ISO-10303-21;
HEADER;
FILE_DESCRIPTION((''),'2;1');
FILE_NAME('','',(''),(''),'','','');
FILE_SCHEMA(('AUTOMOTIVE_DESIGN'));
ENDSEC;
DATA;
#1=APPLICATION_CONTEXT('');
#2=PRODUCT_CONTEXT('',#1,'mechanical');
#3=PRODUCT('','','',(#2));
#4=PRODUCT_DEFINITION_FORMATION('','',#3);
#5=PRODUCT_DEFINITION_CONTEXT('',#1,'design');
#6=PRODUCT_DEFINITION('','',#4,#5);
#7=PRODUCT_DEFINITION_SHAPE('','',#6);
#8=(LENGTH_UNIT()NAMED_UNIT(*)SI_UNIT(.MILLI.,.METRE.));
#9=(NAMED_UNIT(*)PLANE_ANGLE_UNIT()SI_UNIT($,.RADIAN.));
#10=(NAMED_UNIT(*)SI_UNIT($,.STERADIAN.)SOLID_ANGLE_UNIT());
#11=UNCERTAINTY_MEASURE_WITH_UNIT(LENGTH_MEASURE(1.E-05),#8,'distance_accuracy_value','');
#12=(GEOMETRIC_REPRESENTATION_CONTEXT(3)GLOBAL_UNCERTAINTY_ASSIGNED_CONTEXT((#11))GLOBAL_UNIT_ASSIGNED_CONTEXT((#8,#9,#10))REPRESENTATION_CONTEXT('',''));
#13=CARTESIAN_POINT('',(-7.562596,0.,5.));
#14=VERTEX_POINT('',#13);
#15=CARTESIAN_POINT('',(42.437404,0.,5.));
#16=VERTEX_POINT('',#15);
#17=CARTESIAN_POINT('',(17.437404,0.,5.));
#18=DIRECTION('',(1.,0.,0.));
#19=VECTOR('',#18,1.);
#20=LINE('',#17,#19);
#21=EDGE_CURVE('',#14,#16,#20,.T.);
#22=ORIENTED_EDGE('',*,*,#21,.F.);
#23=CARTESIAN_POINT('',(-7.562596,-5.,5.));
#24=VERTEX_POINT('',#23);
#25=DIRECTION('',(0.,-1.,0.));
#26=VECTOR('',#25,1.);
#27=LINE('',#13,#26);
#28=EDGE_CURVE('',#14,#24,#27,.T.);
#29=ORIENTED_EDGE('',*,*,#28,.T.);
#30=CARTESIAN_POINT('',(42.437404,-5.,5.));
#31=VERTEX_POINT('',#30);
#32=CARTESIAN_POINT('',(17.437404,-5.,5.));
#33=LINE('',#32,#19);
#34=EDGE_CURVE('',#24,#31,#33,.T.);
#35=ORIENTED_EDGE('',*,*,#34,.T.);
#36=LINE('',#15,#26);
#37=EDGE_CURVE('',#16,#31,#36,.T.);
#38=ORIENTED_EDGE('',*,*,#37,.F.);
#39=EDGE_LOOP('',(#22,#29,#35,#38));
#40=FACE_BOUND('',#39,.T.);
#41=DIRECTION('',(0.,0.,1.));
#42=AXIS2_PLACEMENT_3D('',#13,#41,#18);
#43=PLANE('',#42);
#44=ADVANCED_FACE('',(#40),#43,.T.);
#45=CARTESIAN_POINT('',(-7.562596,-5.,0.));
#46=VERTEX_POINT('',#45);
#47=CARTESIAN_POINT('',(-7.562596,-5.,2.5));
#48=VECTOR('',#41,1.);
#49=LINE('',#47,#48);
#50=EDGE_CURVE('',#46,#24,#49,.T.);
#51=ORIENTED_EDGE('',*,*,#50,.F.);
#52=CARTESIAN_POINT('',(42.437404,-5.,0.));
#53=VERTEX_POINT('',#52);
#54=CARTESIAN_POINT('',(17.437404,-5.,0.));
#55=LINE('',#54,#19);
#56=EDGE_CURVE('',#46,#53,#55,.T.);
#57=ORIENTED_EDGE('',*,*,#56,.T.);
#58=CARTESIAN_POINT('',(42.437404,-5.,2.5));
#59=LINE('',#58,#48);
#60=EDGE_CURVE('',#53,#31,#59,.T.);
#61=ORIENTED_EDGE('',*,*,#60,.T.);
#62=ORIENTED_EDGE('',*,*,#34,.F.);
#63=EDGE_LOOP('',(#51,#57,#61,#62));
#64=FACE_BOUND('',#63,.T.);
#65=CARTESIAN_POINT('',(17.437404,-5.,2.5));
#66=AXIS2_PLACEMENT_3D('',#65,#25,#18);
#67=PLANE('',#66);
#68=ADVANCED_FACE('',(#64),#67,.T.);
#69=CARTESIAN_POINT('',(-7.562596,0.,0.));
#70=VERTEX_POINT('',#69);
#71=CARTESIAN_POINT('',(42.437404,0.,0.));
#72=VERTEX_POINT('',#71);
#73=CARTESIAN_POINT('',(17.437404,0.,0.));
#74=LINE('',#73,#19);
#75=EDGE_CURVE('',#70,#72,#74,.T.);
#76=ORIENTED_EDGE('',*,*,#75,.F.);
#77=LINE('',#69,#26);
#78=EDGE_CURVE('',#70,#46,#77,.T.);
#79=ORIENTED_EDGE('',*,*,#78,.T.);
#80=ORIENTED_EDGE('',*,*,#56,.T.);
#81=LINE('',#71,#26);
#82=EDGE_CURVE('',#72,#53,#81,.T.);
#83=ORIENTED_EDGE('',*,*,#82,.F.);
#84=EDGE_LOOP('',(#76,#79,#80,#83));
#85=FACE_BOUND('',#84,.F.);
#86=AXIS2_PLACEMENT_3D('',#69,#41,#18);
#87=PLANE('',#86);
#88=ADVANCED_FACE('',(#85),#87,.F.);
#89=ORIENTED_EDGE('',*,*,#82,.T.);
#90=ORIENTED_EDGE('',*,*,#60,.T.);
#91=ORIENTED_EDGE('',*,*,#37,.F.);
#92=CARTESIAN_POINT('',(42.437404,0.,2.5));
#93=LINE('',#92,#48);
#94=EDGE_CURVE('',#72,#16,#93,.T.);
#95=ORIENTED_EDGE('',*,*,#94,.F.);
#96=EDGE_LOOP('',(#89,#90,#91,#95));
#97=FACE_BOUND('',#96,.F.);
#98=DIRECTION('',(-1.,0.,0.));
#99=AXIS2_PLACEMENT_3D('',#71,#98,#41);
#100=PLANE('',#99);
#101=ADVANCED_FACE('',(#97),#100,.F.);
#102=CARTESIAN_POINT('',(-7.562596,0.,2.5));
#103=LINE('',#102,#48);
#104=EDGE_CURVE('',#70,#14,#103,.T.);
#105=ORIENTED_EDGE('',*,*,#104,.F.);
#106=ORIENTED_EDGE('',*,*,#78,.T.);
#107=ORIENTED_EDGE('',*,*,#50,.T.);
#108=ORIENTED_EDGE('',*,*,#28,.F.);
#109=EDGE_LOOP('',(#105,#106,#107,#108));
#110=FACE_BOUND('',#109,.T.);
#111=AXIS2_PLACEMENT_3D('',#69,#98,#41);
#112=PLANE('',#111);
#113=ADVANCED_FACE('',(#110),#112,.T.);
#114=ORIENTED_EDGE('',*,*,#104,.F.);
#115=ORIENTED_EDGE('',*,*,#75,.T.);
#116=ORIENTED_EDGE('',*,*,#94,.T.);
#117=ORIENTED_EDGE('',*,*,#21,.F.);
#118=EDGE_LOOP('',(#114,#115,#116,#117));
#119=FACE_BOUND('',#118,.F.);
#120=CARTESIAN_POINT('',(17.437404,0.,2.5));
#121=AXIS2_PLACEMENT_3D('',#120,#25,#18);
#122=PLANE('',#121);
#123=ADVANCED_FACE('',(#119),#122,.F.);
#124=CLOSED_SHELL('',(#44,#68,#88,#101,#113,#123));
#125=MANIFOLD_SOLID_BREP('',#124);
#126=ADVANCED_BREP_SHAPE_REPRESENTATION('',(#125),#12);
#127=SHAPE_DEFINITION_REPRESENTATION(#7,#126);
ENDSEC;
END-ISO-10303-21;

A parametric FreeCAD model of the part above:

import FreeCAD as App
import Part
import Sketcher
from FreeCAD import Vector

doc = App.newDocument("Part")
body = doc.addObject("PartDesign::Body", "Body")

# Sketch on XZ plane
sketch1 = body.newObject("Sketcher::SketchObject", "Sketch")
sketch1.AttachmentSupport = (doc.getObject("XZ_Plane"), [""])
sketch1.MapMode = "FlatFace"
sketch1.addGeometry([
    Part.LineSegment(Vector(-8, 5, 0), Vector(-8, 0, 0)),
    Part.LineSegment(Vector(-8, 0, 0), Vector(42, 0, 0)),
    Part.LineSegment(Vector(42, 0, 0), Vector(42, 5, 0)),
    Part.LineSegment(Vector(42, 5, 0), Vector(-8, 5, 0)),
], False)
sketch1.addConstraint([
    Sketcher.Constraint("Coincident", 0, 2, 1, 1),
    Sketcher.Constraint("Coincident", 1, 2, 2, 1),
    Sketcher.Constraint("Coincident", 2, 2, 3, 1),
    Sketcher.Constraint("Coincident", 3, 2, 0, 1),
    Sketcher.Constraint("Vertical", 0),
    Sketcher.Constraint("Horizontal", 1),
    Sketcher.Constraint("Vertical", 2),
    Sketcher.Constraint("Horizontal", 3),
    Sketcher.Constraint("PointOnObject", 0, 2, -1),
    Sketcher.Constraint("DistanceX", 1, 1, 1, 2, 50.0),
    Sketcher.Constraint("DistanceY", 0, 2, 0, 1, 5.0),
    Sketcher.Constraint("DistanceX", 0, 2, -1, 1, 7.562596),
])
pad1 = body.newObject("PartDesign::Pad", "Pad")
pad1.Profile = sketch1
pad1.Length = 5
body2 = doc.addObject("PartDesign::Body", "Body001")

# Sketch on XZ plane
sketch2 = body2.newObject("Sketcher::SketchObject", "Sketch001")
sketch2.AttachmentSupport = (doc.getObject("XZ_Plane001"), [""])
sketch2.MapMode = "FlatFace"
sketch2.addGeometry([
    Part.LineSegment(Vector(-61, 50, 0), Vector(-61, 0, 0)),
    Part.LineSegment(Vector(-61, 0, 0), Vector(-56, 0, 0)),
    Part.LineSegment(Vector(-56, 0, 0), Vector(-56, 50, 0)),
    Part.LineSegment(Vector(-56, 50, 0), Vector(-61, 50, 0)),
], False)
sketch2.addConstraint([
    Sketcher.Constraint("Coincident", 0, 2, 1, 1),
    Sketcher.Constraint("Coincident", 1, 2, 2, 1),
    Sketcher.Constraint("Coincident", 2, 2, 3, 1),
    Sketcher.Constraint("Coincident", 3, 2, 0, 1),
    Sketcher.Constraint("Vertical", 0),
    Sketcher.Constraint("Horizontal", 1),
    Sketcher.Constraint("Vertical", 2),
    Sketcher.Constraint("Horizontal", 3),
    Sketcher.Constraint("PointOnObject", 0, 2, -1),
    Sketcher.Constraint("DistanceX", 1, 1, 1, 2, 5.0),
    Sketcher.Constraint("DistanceY", 0, 2, 0, 1, 50.0),
    Sketcher.Constraint("DistanceX", 0, 2, -1, 1, 60.803325),
])
pad2 = body2.newObject("PartDesign::Pad", "Pad001")
pad2.Profile = sketch2
pad2.Length = 5
body2.Visibility = False

doc.recompute()
